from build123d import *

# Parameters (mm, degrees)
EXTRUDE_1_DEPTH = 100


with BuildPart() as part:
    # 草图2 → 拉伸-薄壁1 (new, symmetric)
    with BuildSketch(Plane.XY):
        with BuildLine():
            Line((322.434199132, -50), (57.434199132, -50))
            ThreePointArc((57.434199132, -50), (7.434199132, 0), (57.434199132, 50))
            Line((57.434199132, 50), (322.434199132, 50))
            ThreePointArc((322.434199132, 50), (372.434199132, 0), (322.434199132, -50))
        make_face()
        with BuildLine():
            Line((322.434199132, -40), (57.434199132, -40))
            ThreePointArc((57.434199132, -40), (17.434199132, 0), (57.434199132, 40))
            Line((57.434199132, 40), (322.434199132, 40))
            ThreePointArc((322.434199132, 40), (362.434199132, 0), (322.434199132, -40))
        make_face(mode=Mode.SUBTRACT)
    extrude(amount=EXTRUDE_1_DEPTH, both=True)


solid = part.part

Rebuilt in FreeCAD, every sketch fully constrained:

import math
import FreeCAD as App
import Part
import Sketcher
Q = App.Units.Quantity

doc = App.newDocument("Part")
body = doc.addObject("PartDesign::Body", "Body")

sketch1 = doc.addObject("Sketcher::SketchObject", "Sketch")
body.addObject(sketch1)
sketch1.AttachmentSupport = (doc.XY_Plane, [""])
sketch1.MapMode = "FlatFace"
sketch1.addGeometry(Part.LineSegment(App.Vector(57, -50, 0), App.Vector(322, -50, 0)), False)
sketch1.addGeometry(Part.ArcOfCircle(Part.Circle(App.Vector(322, 0, 0), App.Vector(0, 0, 1), 50), math.radians(-90), math.radians(90)), False)
sketch1.addGeometry(Part.LineSegment(App.Vector(322, 50, 0), App.Vector(57, 50, 0)), False)
sketch1.addGeometry(Part.ArcOfCircle(Part.Circle(App.Vector(57, 0, 0), App.Vector(0, 0, 1), 50), math.radians(90), math.radians(270)), False)
sketch1.addGeometry(Part.LineSegment(App.Vector(322, -40, 0), App.Vector(57, -40, 0)), False)
sketch1.addGeometry(Part.ArcOfCircle(Part.Circle(App.Vector(57, 0, 0), App.Vector(0, 0, 1), 40), math.radians(90), math.radians(270)), False)
sketch1.addGeometry(Part.LineSegment(App.Vector(57, 40, 0), App.Vector(322, 40, 0)), False)
sketch1.addGeometry(Part.ArcOfCircle(Part.Circle(App.Vector(322, 0, 0), App.Vector(0, 0, 1), 40), math.radians(-90), math.radians(90)), False)
sketch1.addConstraint(Sketcher.Constraint("Tangent", 0, 2, 1, 1))
sketch1.addConstraint(Sketcher.Constraint("Tangent", 1, 2, 2, 1))
sketch1.addConstraint(Sketcher.Constraint("Tangent", 2, 2, 3, 1))
sketch1.addConstraint(Sketcher.Constraint("Tangent", 3, 2, 0, 1))
sketch1.addConstraint(Sketcher.Constraint("Tangent", 4, 2, 5, 2))
sketch1.addConstraint(Sketcher.Constraint("Tangent", 5, 1, 6, 1))
sketch1.addConstraint(Sketcher.Constraint("Tangent", 6, 2, 7, 2))
sketch1.addConstraint(Sketcher.Constraint("Tangent", 7, 1, 4, 1))
sketch1.addConstraint(Sketcher.Constraint("Horizontal", 0))
sketch1.addConstraint(Sketcher.Constraint("Horizontal", 2))
sketch1.addConstraint(Sketcher.Constraint("Horizontal", 4))
sketch1.addConstraint(Sketcher.Constraint("Horizontal", 6))
sketch1.addConstraint(Sketcher.Constraint("Coincident", 5, 3, 3, 3))
sketch1.addConstraint(Sketcher.Constraint("PointOnObject", 1, 3, -1))
sketch1.addConstraint(Sketcher.Constraint("Vertical", 7, 3, 0, 2))
sketch1.addConstraint(Sketcher.Constraint("Radius", 1, Q("50 mm")))
sketch1.addConstraint(Sketcher.Constraint("Radius", 5, Q("40 mm")))
sketch1.addConstraint(Sketcher.Constraint("DistanceX", 0, 1, 0, 2, Q("265 mm")))
sketch1.addConstraint(Sketcher.Constraint("DistanceX", -1, 1, 1, 3, Q("322.434199 mm")))
pad1 = doc.addObject("PartDesign::Pad", "Pad")
body.addObject(pad1)
pad1.Profile = sketch1
pad1.Length = 200
pad1.Midplane = True

doc.recompute()
